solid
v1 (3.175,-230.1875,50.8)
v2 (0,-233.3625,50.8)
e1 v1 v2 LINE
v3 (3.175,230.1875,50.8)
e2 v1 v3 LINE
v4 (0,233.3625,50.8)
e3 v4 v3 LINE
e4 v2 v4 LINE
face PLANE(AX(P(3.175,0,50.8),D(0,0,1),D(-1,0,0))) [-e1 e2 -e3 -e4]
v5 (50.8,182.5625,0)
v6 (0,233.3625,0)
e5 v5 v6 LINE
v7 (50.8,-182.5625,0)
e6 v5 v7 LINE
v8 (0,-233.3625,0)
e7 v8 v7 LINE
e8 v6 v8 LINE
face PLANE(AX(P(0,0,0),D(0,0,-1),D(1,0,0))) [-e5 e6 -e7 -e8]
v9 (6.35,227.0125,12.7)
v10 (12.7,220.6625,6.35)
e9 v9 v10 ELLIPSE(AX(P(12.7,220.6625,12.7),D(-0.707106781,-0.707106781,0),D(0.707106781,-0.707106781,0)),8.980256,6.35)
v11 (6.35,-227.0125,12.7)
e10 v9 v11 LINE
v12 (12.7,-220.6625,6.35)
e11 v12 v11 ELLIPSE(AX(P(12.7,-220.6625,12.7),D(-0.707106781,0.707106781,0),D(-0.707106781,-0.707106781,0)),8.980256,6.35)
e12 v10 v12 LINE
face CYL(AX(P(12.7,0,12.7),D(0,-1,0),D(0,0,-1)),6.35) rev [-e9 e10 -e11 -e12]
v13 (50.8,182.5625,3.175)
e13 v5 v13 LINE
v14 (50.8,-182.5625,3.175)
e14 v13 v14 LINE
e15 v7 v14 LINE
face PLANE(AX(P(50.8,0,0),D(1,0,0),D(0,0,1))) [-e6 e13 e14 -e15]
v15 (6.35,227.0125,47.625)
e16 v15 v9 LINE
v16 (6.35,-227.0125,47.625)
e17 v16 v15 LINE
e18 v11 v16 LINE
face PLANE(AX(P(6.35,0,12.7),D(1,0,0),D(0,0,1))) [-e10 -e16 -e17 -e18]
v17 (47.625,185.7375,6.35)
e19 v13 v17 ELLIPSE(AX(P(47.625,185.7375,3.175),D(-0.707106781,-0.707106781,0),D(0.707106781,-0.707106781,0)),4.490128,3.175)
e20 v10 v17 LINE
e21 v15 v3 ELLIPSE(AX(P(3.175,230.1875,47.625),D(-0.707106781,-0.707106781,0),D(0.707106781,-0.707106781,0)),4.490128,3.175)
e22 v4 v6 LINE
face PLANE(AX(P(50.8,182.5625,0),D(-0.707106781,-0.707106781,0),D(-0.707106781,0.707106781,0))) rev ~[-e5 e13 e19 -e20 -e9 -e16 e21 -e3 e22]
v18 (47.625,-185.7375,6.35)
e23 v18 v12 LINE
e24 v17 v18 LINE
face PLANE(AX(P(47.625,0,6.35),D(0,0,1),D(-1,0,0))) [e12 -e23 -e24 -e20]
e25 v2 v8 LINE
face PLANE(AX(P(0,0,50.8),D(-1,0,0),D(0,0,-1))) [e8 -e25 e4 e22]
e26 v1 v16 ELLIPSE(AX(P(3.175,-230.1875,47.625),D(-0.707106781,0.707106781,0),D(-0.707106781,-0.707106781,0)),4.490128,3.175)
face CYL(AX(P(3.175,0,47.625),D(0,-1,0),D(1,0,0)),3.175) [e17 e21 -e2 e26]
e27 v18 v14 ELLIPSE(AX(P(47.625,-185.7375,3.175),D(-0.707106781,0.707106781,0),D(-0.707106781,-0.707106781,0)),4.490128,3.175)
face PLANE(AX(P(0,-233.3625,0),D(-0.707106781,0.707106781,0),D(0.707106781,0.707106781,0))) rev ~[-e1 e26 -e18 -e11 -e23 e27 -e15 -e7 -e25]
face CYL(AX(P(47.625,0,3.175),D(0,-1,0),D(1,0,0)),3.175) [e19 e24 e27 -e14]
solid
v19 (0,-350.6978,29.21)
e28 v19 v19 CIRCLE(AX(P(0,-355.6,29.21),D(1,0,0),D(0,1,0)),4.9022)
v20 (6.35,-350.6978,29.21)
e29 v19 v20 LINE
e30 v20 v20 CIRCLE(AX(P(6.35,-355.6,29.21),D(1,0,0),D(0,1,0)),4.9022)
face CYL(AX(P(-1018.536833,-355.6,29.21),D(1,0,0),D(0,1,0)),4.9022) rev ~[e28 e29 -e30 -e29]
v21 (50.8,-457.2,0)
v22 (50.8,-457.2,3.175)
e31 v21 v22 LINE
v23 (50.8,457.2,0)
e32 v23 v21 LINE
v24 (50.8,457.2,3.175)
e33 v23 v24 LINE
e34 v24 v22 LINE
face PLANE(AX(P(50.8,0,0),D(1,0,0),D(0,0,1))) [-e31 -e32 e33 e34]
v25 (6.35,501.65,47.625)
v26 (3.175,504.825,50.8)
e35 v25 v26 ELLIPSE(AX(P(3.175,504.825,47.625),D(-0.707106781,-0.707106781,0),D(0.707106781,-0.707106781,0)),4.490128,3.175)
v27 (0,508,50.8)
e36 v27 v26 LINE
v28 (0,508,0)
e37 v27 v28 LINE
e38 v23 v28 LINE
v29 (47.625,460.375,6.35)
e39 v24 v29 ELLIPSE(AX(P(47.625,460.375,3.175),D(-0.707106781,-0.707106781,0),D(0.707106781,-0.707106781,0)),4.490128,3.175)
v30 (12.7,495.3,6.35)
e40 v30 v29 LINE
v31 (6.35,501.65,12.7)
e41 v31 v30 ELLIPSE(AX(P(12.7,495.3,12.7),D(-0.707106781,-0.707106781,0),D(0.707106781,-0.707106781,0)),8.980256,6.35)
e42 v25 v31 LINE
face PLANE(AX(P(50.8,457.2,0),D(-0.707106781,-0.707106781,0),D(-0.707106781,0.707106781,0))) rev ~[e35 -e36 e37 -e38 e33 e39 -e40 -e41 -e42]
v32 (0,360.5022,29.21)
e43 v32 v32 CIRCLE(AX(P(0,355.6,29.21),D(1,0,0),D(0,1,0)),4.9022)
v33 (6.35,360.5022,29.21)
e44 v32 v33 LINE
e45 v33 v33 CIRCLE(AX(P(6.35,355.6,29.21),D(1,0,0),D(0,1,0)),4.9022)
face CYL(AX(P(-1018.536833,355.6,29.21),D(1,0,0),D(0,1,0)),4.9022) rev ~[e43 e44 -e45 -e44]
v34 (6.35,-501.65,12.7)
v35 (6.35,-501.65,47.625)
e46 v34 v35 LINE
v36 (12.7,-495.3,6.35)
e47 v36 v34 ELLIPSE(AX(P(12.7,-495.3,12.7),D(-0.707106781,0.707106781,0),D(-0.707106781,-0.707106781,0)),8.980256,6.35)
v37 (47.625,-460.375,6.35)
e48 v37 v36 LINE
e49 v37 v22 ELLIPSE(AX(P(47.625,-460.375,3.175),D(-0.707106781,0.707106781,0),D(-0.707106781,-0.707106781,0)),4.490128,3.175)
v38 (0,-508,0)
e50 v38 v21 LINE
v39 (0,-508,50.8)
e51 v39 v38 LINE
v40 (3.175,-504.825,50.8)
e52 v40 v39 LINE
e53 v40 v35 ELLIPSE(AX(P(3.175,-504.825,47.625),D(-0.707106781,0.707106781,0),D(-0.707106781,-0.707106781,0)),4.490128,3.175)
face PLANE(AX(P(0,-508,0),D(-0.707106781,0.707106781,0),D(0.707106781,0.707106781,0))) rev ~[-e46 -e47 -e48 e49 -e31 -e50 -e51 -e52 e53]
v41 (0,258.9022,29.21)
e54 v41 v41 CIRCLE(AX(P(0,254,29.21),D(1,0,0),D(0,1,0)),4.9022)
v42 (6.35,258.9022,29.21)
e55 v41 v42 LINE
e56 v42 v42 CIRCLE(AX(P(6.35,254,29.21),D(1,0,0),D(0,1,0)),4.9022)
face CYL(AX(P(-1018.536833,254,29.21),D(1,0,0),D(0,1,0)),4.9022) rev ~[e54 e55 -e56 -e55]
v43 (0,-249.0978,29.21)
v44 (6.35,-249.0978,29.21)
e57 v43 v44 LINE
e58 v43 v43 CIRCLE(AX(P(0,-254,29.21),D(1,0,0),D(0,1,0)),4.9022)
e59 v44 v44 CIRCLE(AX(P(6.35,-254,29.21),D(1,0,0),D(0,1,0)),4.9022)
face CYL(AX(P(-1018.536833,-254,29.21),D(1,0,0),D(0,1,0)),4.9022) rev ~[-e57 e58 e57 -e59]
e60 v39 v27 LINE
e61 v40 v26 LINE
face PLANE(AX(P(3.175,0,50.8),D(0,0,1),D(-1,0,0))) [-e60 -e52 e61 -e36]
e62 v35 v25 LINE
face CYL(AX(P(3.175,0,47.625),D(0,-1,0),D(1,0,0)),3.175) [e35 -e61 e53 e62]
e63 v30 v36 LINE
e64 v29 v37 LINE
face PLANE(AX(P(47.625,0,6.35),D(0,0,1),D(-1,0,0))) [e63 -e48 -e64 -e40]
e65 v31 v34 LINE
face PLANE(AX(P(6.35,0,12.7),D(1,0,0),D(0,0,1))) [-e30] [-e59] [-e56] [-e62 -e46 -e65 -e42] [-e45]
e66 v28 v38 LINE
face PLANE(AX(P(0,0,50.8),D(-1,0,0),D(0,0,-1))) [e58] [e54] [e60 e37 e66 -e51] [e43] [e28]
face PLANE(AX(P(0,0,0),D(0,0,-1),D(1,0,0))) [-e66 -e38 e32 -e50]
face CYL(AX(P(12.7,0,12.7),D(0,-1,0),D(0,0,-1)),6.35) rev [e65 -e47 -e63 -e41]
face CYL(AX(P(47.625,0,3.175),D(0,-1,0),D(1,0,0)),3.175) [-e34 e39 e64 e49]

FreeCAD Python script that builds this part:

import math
import FreeCAD as App
import Part
import Sketcher

V = App.Vector
Q = App.Units.Quantity


def add_polygon(sketch, points):
    """Adds a closed chain of lines whose ends are joined by coincident constraints."""
    first, n = sketch.GeometryCount, len(points)
    for a, b in zip(points, points[1:] + points[:1]):
        sketch.addGeometry(Part.LineSegment(App.Vector(*a, 0), App.Vector(*b, 0)), False)
    for i in range(n):
        sketch.addConstraint(Sketcher.Constraint("Coincident", first + i, 2, first + (i + 1) % n, 1))

doc = App.newDocument("Part")
body = doc.addObject("PartDesign::Body", "Body")

# Sketch on XZ plane
sketch1 = doc.addObject("Sketcher::SketchObject", "Sketch")
body.addObject(sketch1)
sketch1.AttachmentSupport = (doc.XZ_Plane, [""])
sketch1.MapMode = "FlatFace"
sketch1.addGeometry(Part.LineSegment(V(0, 50.8, 0), V(0, 0, 0)), False)
sketch1.addGeometry(Part.LineSegment(V(0, 0, 0), V(50.8, 0, 0)), False)
sketch1.addGeometry(Part.LineSegment(V(50.8, 0, 0), V(50.8, 3.2, 0)), False)
sketch1.addGeometry(Part.ArcOfCircle(Part.Circle(V(47.6, 3.2, 0), V(0, 0, 1), 3.2), math.radians(0), math.radians(90)), False)
sketch1.addGeometry(Part.LineSegment(V(47.6, 6.3, 0), V(12.7, 6.3, 0)), False)
sketch1.addGeometry(Part.ArcOfCircle(Part.Circle(V(12.7, 12.7, 0), V(0, 0, 1), 6.3), math.radians(180), math.radians(270)), False)
sketch1.addGeometry(Part.LineSegment(V(6.3, 12.7, 0), V(6.3, 47.6, 0)), False)
sketch1.addGeometry(Part.ArcOfCircle(Part.Circle(V(3.2, 47.6, 0), V(0, 0, 1), 3.2), math.radians(0), math.radians(90)), False)
sketch1.addGeometry(Part.LineSegment(V(3.2, 50.8, 0), V(0, 50.8, 0)), False)
sketch1.addConstraint(Sketcher.Constraint("Coincident", 0, 2, 1, 1))
sketch1.addConstraint(Sketcher.Constraint("Coincident", 1, 2, 2, 1))
sketch1.addConstraint(Sketcher.Constraint("Tangent", 2, 2, 3, 1))
sketch1.addConstraint(Sketcher.Constraint("Tangent", 3, 2, 4, 1))
sketch1.addConstraint(Sketcher.Constraint("Tangent", 4, 2, 5, 2))
sketch1.addConstraint(Sketcher.Constraint("Tangent", 5, 1, 6, 1))
sketch1.addConstraint(Sketcher.Constraint("Tangent", 6, 2, 7, 1))
sketch1.addConstraint(Sketcher.Constraint("Tangent", 7, 2, 8, 1))
sketch1.addConstraint(Sketcher.Constraint("Coincident", 8, 2, 0, 1))
sketch1.addConstraint(Sketcher.Constraint("Vertical", 0))
sketch1.addConstraint(Sketcher.Constraint("Horizontal", 1))
sketch1.addConstraint(Sketcher.Constraint("Vertical", 2))
sketch1.addConstraint(Sketcher.Constraint("Horizontal", 4))
sketch1.addConstraint(Sketcher.Constraint("Vertical", 6))
sketch1.addConstraint(Sketcher.Constraint("Horizontal", 8))
sketch1.addConstraint(Sketcher.Constraint("Coincident", 0, 2, -1, 1))
sketch1.addConstraint(Sketcher.Constraint("Equal", 3, 7))
sketch1.addConstraint(Sketcher.Constraint("Equal", 1, 0))
sketch1.addConstraint(Sketcher.Constraint("Equal", 8, 2))
sketch1.addConstraint(Sketcher.Constraint("DistanceX", 1, 1, 1, 2, Q("2 in")))
sketch1.addConstraint(Sketcher.Constraint("Radius", 5, Q("0.25 in")))
sketch1.addConstraint(Sketcher.Constraint("Radius", 3, Q("0.125 in")))
sketch1.addConstraint(Sketcher.Constraint("DistanceX", -1, 1, 5, 3, Q("0.5 in")))
pad1 = doc.addObject("PartDesign::Pad", "Pad")
body.addObject(pad1)
pad1.Profile = sketch1
pad1.Length = Q("18.375 in")
pad1.Midplane = True

# Sketch on XY plane
sketch2 = doc.addObject("Sketcher::SketchObject", "Sketch001")
body.addObject(sketch2)
sketch2.AttachmentSupport = (doc.XY_Plane, [""])
sketch2.MapMode = "FlatFace"
add_polygon(sketch2, [(51, -233), (0, -233), (51, -183)])  # lines 0-2
add_polygon(sketch2, [(51, 183), (0, 233), (51, 233)])  # lines 3-5
sketch2.addConstraint(Sketcher.Constraint("Horizontal", 0))
sketch2.addConstraint(Sketcher.Constraint("Vertical", 2))
sketch2.addConstraint(Sketcher.Constraint("Horizontal", 4))
sketch2.addConstraint(Sketcher.Constraint("Vertical", 5))
sketch2.addConstraint(Sketcher.Constraint("Symmetric", 0, 2, 3, 2, -1, 1))
sketch2.addConstraint(Sketcher.Constraint("Symmetric", 1, 2, 5, 2, -1))
sketch2.addConstraint(Sketcher.Constraint("PointOnObject", 0, 2, -2))
sketch2.addConstraint(Sketcher.Constraint("Perpendicular", 1, 3))
sketch2.addConstraint(Sketcher.Constraint("DistanceX", 0, 2, 0, 1, Q("2 in")))
sketch2.addConstraint(Sketcher.Constraint("DistanceY", 0, 2, -1, 1, Q("9.1875 in")))
pocket1 = doc.addObject("PartDesign::Pocket", "Pocket")
body.addObject(pocket1)
pocket1.Profile = sketch2
pocket1.Type = "ThroughAll"
pocket1.Reversed = True
body2 = doc.addObject("PartDesign::Body", "Body001")

# Sketch on XZ plane
sketch3 = doc.addObject("Sketcher::SketchObject", "Sketch002")
body2.addObject(sketch3)
sketch3.AttachmentSupport = (doc.getObject("XZ_Plane001"), [""])
sketch3.MapMode = "FlatFace"
sketch3.addGeometry(Part.LineSegment(V(0, 50.8, 0), V(0, 0, 0)), False)
sketch3.addGeometry(Part.LineSegment(V(0, 0, 0), V(50.8, 0, 0)), False)
sketch3.addGeometry(Part.LineSegment(V(50.8, 0, 0), V(50.8, 3.2, 0)), False)
sketch3.addGeometry(Part.ArcOfCircle(Part.Circle(V(47.6, 3.2, 0), V(0, 0, 1), 3.2), math.radians(0), math.radians(90)), False)
sketch3.addGeometry(Part.LineSegment(V(47.6, 6.3, 0), V(12.7, 6.3, 0)), False)
sketch3.addGeometry(Part.ArcOfCircle(Part.Circle(V(12.7, 12.7, 0), V(0, 0, 1), 6.3), math.radians(180), math.radians(270)), False)
sketch3.addGeometry(Part.LineSegment(V(6.3, 12.7, 0), V(6.3, 47.6, 0)), False)
sketch3.addGeometry(Part.ArcOfCircle(Part.Circle(V(3.2, 47.6, 0), V(0, 0, 1), 3.2), math.radians(0), math.radians(90)), False)
sketch3.addGeometry(Part.LineSegment(V(3.2, 50.8, 0), V(0, 50.8, 0)), False)
sketch3.addConstraint(Sketcher.Constraint("Coincident", 0, 2, 1, 1))
sketch3.addConstraint(Sketcher.Constraint("Coincident", 1, 2, 2, 1))
sketch3.addConstraint(Sketcher.Constraint("Tangent", 2, 2, 3, 1))
sketch3.addConstraint(Sketcher.Constraint("Tangent", 3, 2, 4, 1))
sketch3.addConstraint(Sketcher.Constraint("Tangent", 4, 2, 5, 2))
sketch3.addConstraint(Sketcher.Constraint("Tangent", 5, 1, 6, 1))
sketch3.addConstraint(Sketcher.Constraint("Tangent", 6, 2, 7, 1))
sketch3.addConstraint(Sketcher.Constraint("Tangent", 7, 2, 8, 1))
sketch3.addConstraint(Sketcher.Constraint("Coincident", 8, 2, 0, 1))
sketch3.addConstraint(Sketcher.Constraint("Vertical", 0))
sketch3.addConstraint(Sketcher.Constraint("Horizontal", 1))
sketch3.addConstraint(Sketcher.Constraint("Vertical", 2))
sketch3.addConstraint(Sketcher.Constraint("Horizontal", 4))
sketch3.addConstraint(Sketcher.Constraint("Vertical", 6))
sketch3.addConstraint(Sketcher.Constraint("Horizontal", 8))
sketch3.addConstraint(Sketcher.Constraint("Coincident", 0, 2, -1, 1))
sketch3.addConstraint(Sketcher.Constraint("Equal", 3, 7))
sketch3.addConstraint(Sketcher.Constraint("Equal", 1, 0))
sketch3.addConstraint(Sketcher.Constraint("Equal", 8, 2))
sketch3.addConstraint(Sketcher.Constraint("DistanceX", 1, 1, 1, 2, Q("2 in")))
sketch3.addConstraint(Sketcher.Constraint("Radius", 5, Q("0.25 in")))
sketch3.addConstraint(Sketcher.Constraint("Radius", 3, Q("0.125 in")))
sketch3.addConstraint(Sketcher.Constraint("DistanceX", -1, 1, 5, 3, Q("0.5 in")))
pad2 = doc.addObject("PartDesign::Pad", "Pad001")
body2.addObject(pad2)
pad2.Profile = sketch3
pad2.Length = Q("40 in")
pad2.Midplane = True

# Sketch on XY plane
sketch4 = doc.addObject("Sketcher::SketchObject", "Sketch003")
body2.addObject(sketch4)
sketch4.AttachmentSupport = (doc.getObject("XY_Plane001"), [""])
sketch4.MapMode = "FlatFace"
add_polygon(sketch4, [(51, -508), (0, -508), (51, -457)])  # lines 0-2
add_polygon(sketch4, [(51, 457), (0, 508), (51, 508)])  # lines 3-5
sketch4.addConstraint(Sketcher.Constraint("Horizontal", 0))
sketch4.addConstraint(Sketcher.Constraint("Vertical", 2))
sketch4.addConstraint(Sketcher.Constraint("Horizontal", 4))
sketch4.addConstraint(Sketcher.Constraint("Vertical", 5))
sketch4.addConstraint(Sketcher.Constraint("Symmetric", 0, 2, 3, 2, -1, 1))
sketch4.addConstraint(Sketcher.Constraint("Symmetric", 1, 2, 5, 2, -1))
sketch4.addConstraint(Sketcher.Constraint("PointOnObject", 0, 2, -2))
sketch4.addConstraint(Sketcher.Constraint("Perpendicular", 1, 3))
sketch4.addConstraint(Sketcher.Constraint("DistanceX", 0, 2, 0, 1, Q("2 in")))
sketch4.addConstraint(Sketcher.Constraint("DistanceY", 0, 2, -1, 1, Q("20 in")))
pocket2 = doc.addObject("PartDesign::Pocket", "Pocket001")
body2.addObject(pocket2)
pocket2.Profile = sketch4
pocket2.Type = "ThroughAll"
pocket2.Reversed = True

# Sketch on YZ plane
sketch5 = doc.addObject("Sketcher::SketchObject", "Sketch004")
body2.addObject(sketch5)
sketch5.AttachmentSupport = (doc.getObject("YZ_Plane001"), [""])
sketch5.MapMode = "FlatFace"
sketch5.addGeometry(Part.Circle(V(-355.6, 29.2, 0), V(0, 0, 1), 4.9), False)
sketch5.addGeometry(Part.Circle(V(-254, 29.2, 0), V(0, 0, 1), 4.9), False)
sketch5.addGeometry(Part.Circle(V(254, 29.2, 0), V(0, 0, 1), 4.9), False)
sketch5.addGeometry(Part.Circle(V(355.6, 29.2, 0), V(0, 0, 1), 4.9), False)
sketch5.addConstraint(Sketcher.Constraint("Equal", 0, 1))
sketch5.addConstraint(Sketcher.Constraint("Equal", 1, 2))
sketch5.addConstraint(Sketcher.Constraint("Equal", 2, 3))
sketch5.addConstraint(Sketcher.Constraint("Symmetric", 1, 3, 2, 3, -2))
sketch5.addConstraint(Sketcher.Constraint("Symmetric", 0, 3, 3, 3, -2))
sketch5.addConstraint(Sketcher.Constraint("Horizontal", 0, 3, 1, 3))
sketch5.addConstraint(Sketcher.Constraint("Diameter", 0, Q("0.386 in")))
sketch5.addConstraint(Sketcher.Constraint("DistanceX", 0, 3, -1, 1, Q("14 in")))
sketch5.addConstraint(Sketcher.Constraint("DistanceX", 1, 3, -1, 1, Q("10 in")))
sketch5.addConstraint(Sketcher.Constraint("DistanceY", -1, 1, 0, 3, Q("1.15 in")))
doc.recompute()
hole = doc.addObject("PartDesign::Hole", "Hole")
body2.addObject(hole)
hole.Profile = sketch5
hole.ThreadType = "None"
hole.Diameter = Q("0.386 in")
hole.DepthType = "ThroughAll"
hole.Reversed = True

doc.recompute()
